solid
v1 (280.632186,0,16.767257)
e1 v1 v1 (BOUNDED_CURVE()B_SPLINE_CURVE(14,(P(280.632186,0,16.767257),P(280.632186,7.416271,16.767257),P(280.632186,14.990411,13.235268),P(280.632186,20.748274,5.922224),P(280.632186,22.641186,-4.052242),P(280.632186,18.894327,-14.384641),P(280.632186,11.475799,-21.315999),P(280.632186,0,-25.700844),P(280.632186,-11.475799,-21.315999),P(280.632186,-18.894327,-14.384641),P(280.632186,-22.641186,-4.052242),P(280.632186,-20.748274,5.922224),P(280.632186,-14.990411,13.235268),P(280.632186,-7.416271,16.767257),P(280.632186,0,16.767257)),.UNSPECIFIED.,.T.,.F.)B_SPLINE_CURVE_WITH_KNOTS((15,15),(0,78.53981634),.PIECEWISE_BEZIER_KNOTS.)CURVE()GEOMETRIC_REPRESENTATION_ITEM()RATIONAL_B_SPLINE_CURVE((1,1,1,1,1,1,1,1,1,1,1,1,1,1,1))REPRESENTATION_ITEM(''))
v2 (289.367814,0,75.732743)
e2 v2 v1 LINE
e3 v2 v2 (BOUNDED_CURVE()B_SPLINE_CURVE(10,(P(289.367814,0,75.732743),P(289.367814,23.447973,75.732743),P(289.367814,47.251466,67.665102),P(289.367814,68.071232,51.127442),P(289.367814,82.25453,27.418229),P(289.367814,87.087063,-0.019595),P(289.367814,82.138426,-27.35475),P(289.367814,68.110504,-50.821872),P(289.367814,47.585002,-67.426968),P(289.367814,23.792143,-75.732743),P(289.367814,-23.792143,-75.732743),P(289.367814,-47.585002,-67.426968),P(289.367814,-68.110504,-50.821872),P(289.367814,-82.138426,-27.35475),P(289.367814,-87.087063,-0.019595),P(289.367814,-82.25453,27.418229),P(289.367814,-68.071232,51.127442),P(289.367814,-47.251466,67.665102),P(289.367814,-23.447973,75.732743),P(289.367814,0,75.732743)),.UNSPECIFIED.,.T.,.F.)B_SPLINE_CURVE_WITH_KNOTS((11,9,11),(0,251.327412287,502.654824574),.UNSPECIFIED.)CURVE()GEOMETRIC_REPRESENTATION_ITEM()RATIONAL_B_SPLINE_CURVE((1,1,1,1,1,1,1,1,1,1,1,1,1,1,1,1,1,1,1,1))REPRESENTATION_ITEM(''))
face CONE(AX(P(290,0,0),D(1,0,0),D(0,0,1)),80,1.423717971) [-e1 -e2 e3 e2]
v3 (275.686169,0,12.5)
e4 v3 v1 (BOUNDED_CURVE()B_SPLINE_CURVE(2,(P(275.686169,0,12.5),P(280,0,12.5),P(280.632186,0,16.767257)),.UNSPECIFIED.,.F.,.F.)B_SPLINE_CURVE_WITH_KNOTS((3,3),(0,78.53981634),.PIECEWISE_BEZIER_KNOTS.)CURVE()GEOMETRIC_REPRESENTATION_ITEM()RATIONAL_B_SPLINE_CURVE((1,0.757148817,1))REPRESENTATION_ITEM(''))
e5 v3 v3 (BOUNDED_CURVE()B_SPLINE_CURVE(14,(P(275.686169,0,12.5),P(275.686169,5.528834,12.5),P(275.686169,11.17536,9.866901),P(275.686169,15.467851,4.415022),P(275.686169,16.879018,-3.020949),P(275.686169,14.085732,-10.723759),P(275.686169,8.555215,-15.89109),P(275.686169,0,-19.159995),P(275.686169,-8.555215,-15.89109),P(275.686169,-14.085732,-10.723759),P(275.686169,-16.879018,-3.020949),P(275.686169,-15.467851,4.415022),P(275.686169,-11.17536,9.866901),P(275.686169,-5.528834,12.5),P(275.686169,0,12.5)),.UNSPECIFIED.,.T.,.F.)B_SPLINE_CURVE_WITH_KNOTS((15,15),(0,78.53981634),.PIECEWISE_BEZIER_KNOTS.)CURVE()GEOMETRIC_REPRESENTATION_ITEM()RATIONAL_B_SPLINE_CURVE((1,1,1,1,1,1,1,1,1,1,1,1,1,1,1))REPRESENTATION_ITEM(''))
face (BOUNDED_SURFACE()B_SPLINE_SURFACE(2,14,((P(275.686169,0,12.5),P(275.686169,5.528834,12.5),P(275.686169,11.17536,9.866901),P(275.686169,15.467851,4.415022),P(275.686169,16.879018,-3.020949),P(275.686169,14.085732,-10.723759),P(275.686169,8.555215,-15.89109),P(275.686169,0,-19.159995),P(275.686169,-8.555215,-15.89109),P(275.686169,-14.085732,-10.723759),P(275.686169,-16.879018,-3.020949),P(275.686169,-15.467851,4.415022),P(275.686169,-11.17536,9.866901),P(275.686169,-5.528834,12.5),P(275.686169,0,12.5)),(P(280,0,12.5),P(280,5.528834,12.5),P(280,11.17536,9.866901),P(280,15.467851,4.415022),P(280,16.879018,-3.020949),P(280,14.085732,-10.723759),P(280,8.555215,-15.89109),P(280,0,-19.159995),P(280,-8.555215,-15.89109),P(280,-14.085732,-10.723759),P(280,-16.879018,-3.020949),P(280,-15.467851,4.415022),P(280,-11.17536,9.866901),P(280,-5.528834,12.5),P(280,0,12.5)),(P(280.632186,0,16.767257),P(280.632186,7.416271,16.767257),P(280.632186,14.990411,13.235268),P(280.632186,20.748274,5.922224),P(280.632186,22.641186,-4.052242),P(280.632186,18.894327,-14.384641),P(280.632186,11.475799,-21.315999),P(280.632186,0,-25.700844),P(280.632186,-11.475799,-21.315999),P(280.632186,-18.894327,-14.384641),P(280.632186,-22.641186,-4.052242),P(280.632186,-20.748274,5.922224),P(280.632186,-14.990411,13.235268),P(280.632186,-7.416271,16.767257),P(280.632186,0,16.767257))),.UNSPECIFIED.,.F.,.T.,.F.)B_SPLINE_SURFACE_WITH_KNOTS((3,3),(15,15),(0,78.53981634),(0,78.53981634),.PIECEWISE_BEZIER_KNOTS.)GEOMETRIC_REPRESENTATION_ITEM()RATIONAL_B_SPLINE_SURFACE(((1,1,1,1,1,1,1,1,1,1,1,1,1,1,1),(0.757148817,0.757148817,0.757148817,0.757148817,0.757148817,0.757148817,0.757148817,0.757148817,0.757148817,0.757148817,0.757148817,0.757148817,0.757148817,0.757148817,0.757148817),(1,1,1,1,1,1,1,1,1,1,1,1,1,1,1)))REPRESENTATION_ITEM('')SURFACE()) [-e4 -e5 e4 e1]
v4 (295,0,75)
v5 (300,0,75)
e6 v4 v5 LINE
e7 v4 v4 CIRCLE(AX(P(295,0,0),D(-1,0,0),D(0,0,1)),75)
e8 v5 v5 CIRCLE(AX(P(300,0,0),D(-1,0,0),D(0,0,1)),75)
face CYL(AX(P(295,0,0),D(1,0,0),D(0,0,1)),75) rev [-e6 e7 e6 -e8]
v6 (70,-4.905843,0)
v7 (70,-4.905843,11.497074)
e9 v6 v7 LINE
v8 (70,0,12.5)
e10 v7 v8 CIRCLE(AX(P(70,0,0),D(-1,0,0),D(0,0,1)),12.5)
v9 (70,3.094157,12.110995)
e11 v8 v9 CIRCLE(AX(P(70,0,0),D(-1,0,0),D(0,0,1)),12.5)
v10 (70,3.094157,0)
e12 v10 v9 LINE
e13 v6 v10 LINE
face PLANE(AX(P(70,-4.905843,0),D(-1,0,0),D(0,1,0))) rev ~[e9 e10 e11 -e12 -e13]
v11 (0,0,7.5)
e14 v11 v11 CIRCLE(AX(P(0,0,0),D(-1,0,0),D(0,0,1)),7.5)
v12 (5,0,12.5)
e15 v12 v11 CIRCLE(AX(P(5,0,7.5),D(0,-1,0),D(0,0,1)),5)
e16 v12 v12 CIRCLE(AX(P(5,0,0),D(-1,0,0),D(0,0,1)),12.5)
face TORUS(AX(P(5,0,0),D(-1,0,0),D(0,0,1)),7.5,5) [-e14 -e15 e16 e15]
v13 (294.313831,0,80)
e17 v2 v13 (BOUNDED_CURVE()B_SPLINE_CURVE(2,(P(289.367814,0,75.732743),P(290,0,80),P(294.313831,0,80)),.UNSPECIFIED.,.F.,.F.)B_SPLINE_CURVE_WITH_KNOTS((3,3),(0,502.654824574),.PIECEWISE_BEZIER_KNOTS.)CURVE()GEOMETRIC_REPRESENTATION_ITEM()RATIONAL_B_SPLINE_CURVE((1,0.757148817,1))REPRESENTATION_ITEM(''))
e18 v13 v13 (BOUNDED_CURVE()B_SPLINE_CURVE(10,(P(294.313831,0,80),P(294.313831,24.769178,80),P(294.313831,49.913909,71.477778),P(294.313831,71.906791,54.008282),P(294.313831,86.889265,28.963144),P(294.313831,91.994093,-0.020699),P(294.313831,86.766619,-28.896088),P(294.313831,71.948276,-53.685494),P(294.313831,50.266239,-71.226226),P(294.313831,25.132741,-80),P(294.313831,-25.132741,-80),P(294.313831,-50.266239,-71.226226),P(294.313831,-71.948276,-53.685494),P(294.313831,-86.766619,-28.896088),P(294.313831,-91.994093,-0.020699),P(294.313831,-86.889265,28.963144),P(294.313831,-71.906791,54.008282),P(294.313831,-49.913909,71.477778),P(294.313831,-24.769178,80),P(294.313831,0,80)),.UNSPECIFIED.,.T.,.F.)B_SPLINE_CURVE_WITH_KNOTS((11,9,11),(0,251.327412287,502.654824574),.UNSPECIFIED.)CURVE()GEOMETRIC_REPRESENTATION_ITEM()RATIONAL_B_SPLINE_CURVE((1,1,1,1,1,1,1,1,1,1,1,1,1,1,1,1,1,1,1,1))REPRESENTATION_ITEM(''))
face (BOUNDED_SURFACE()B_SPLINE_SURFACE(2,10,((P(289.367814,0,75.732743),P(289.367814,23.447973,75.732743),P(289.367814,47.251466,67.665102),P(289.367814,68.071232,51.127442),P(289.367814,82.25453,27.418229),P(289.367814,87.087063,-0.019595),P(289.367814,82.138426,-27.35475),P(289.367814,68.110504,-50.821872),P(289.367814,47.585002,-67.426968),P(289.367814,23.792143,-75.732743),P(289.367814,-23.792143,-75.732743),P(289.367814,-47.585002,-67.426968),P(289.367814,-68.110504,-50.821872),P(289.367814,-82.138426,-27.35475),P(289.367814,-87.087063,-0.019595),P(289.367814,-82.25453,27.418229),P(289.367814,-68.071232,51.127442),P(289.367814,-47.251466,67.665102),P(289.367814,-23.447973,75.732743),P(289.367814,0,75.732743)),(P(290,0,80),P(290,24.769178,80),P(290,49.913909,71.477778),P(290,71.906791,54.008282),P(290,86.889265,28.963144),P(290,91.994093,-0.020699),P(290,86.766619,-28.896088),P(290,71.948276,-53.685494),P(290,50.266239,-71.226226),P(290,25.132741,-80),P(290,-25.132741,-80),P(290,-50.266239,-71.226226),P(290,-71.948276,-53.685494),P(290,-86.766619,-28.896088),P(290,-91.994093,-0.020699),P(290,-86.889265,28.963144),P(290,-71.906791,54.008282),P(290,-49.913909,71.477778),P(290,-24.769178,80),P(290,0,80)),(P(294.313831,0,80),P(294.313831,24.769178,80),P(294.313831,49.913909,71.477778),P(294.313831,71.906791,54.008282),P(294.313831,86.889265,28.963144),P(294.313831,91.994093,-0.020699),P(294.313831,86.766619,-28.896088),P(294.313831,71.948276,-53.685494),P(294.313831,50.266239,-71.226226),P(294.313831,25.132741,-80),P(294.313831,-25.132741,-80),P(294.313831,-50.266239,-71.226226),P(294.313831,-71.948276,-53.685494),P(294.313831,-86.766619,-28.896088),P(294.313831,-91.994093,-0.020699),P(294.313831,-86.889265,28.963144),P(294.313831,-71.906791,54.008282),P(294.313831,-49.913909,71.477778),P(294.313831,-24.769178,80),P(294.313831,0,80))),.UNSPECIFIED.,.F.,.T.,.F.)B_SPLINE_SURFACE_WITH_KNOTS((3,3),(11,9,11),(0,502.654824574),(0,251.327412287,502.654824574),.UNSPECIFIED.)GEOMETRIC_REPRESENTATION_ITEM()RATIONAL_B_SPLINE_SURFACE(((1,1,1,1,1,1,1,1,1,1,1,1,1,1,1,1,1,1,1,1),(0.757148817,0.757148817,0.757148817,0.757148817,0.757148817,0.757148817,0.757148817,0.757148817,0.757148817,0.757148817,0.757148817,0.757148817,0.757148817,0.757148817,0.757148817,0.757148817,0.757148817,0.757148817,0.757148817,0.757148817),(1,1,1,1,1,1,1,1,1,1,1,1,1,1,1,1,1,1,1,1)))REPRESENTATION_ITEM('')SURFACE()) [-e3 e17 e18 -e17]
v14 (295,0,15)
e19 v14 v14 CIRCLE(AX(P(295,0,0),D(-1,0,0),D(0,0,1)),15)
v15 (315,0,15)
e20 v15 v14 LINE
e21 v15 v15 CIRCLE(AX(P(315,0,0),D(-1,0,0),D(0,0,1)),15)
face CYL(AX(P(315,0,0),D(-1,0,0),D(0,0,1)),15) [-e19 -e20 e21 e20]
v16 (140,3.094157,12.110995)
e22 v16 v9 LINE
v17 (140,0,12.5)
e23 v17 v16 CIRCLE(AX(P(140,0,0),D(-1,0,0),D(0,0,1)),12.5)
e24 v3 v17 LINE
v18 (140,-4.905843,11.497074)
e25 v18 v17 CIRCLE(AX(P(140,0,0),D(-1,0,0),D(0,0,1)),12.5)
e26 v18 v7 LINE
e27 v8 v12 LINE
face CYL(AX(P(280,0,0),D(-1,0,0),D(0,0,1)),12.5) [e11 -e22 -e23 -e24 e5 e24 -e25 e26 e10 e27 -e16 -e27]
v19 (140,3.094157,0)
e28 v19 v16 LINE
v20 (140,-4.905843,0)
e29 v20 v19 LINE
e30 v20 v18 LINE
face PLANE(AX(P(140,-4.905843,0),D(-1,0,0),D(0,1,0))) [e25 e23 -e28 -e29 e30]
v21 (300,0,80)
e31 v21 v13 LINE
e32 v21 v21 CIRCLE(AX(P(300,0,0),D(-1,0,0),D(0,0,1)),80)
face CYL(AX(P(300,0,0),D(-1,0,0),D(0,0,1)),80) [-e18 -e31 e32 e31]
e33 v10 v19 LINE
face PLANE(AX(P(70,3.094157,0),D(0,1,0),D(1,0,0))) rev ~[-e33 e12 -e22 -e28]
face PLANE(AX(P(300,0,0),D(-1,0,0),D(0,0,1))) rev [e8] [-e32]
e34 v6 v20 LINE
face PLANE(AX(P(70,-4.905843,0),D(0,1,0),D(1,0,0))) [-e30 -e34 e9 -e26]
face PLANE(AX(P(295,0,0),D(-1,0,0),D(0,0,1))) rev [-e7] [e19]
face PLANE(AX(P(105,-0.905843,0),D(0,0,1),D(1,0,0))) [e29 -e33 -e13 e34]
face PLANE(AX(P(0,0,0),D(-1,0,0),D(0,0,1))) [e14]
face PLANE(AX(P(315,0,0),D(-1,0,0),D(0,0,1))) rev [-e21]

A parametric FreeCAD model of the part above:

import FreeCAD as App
import Part
import Sketcher


def edges_at(feature, points):
    """Names of the edges that pass closest to the given points."""
    edges = feature.Shape.Edges
    near = lambda p: min(range(len(edges)), key=lambda i: edges[i].distToShape(Part.Vertex(*p))[0])
    return sorted({f"Edge{near(p) + 1}" for p in points})


def add_polygon(sketch, points):
    """Adds a closed chain of lines whose ends are joined by coincident constraints."""
    first, n = sketch.GeometryCount, len(points)
    for a, b in zip(points, points[1:] + points[:1]):
        sketch.addGeometry(Part.LineSegment(App.Vector(*a, 0), App.Vector(*b, 0)), False)
    for i in range(n):
        sketch.addConstraint(Sketcher.Constraint("Coincident", first + i, 2, first + (i + 1) % n, 1))

doc = App.newDocument("Part")
body = doc.addObject("PartDesign::Body", "Body")

# Sketch on XZ plane
sketch1 = body.newObject("Sketcher::SketchObject", "Sketch")
sketch1.AttachmentSupport = (doc.getObject("XZ_Plane"), [""])
sketch1.MapMode = "FlatFace"
add_polygon(sketch1, [(0, 12), (0, 0), (315, 0), (315, 15), (295, 15), (295, 75), (300, 75), (300, 80), (290, 80), (280, 12)])  # lines 0-9
sketch1.addConstraint([
    Sketcher.Constraint("Vertical", 0),
    Sketcher.Constraint("Horizontal", 1),
    Sketcher.Constraint("Vertical", 2),
    Sketcher.Constraint("Horizontal", 3),
    Sketcher.Constraint("Vertical", 4),
    Sketcher.Constraint("Horizontal", 5),
    Sketcher.Constraint("Vertical", 6),
    Sketcher.Constraint("Horizontal", 7),
    Sketcher.Constraint("Horizontal", 9),
    Sketcher.Constraint("Coincident", 0, 2, -1, 1),
    Sketcher.Constraint("Equal", 5, 6),
    Sketcher.Constraint("DistanceX", 1, 1, 1, 2, 315.0),
    Sketcher.Constraint("DistanceX", 3, 2, 3, 1, 20.0),
    Sketcher.Constraint("DistanceX", 5, 1, 5, 2, 5.0),
    Sketcher.Constraint("DistanceX", 7, 2, 7, 1, 10.0),
    Sketcher.Constraint("DistanceX", 9, 2, 9, 1, 280.0),
    Sketcher.Constraint("DistanceY", 2, 1, 2, 2, 15.0),
    Sketcher.Constraint("DistanceY", 4, 1, 4, 2, 60.0),
    Sketcher.Constraint("DistanceY", 0, 2, 0, 1, 12.5),
])
revolution = body.newObject("PartDesign::Revolution", "Revolution")
revolution.Profile = sketch1
revolution.ReferenceAxis = (sketch1, ["H_Axis"])
revolution.Angle = 360

# Sketch on XY plane
sketch2 = body.newObject("Sketcher::SketchObject", "Sketch001")
sketch2.AttachmentSupport = (doc.getObject("XY_Plane"), [""])
sketch2.MapMode = "FlatFace"
add_polygon(sketch2, [(70, 3), (70, -5), (140, -5), (140, 3)])  # lines 0-3
sketch2.addConstraint([
    Sketcher.Constraint("Vertical", 0),
    Sketcher.Constraint("Horizontal", 1),
    Sketcher.Constraint("Vertical", 2),
    Sketcher.Constraint("Horizontal", 3),
    Sketcher.Constraint("DistanceX", 1, 1, 1, 2, 70.0),
    Sketcher.Constraint("DistanceY", 0, 2, 0, 1, 8.0),
    Sketcher.Constraint("DistanceX", -1, 1, 0, 2, 70.0),
    Sketcher.Constraint("DistanceY", 0, 2, -1, 1, 4.905843),
])
pocket1 = body.newObject("PartDesign::Pocket", "Pocket")
pocket1.Profile = sketch2
pocket1.Type = "ThroughAll"
pocket1.Reversed = True
doc.recompute()

fillet = body.newObject("PartDesign::Fillet", "Fillet")
fillet.Base = (pocket1, edges_at(pocket1, [(290, 0, -80), (280, 0, -12.5)]))
fillet.Radius = 5
doc.recompute()

fillet2 = body.newObject("PartDesign::Fillet", "Fillet001")
fillet2.Base = (fillet, edges_at(fillet, [(0, 0, -12.5)]))
fillet2.Radius = 5

doc.recompute()
